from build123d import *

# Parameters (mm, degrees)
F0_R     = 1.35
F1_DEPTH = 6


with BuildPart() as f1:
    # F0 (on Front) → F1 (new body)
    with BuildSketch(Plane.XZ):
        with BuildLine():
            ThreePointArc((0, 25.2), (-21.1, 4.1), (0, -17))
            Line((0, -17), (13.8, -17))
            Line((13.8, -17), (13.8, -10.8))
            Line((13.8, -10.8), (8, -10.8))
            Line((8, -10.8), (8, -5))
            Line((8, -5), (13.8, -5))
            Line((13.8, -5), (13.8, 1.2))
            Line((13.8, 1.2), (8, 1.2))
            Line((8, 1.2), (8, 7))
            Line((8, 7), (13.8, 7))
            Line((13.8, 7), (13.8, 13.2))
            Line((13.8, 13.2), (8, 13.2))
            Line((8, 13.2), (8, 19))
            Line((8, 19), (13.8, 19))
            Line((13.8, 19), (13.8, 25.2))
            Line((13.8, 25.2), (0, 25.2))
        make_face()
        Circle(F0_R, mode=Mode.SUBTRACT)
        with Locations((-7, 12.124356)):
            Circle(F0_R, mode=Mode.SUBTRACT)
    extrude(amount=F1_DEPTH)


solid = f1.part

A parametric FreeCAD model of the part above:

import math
import FreeCAD as App
import Part
import Sketcher
from FreeCAD import Vector

doc = App.newDocument("Part")
body = doc.addObject("PartDesign::Body", "Body")

sketch1 = doc.addObject("Sketcher::SketchObject", "Sketch")
body.addObject(sketch1)
sketch1.AttachmentSupport = (doc.XZ_Plane, [""])
sketch1.MapMode = "FlatFace"
sketch1.addGeometry([
    Part.ArcOfCircle(Part.Circle(Vector(0, 4.1, 0), Vector(0, 0, 1), 21.1), math.radians(90), math.radians(270)),
    Part.LineSegment(Vector(0, -17, 0), Vector(13.8, -17, 0)),
    Part.LineSegment(Vector(13.8, -17, 0), Vector(13.8, -10.8, 0)),
    Part.LineSegment(Vector(13.8, -10.8, 0), Vector(8, -10.8, 0)),
    Part.LineSegment(Vector(8, -10.8, 0), Vector(8, -5, 0)),
    Part.LineSegment(Vector(8, -5, 0), Vector(13.8, -5, 0)),
    Part.LineSegment(Vector(13.8, -5, 0), Vector(13.8, 1.2, 0)),
    Part.LineSegment(Vector(13.8, 1.2, 0), Vector(8, 1.2, 0)),
    Part.LineSegment(Vector(8, 1.2, 0), Vector(8, 7, 0)),
    Part.LineSegment(Vector(8, 7, 0), Vector(13.8, 7, 0)),
    Part.LineSegment(Vector(13.8, 7, 0), Vector(13.8, 13.2, 0)),
    Part.LineSegment(Vector(13.8, 13.2, 0), Vector(8, 13.2, 0)),
    Part.LineSegment(Vector(8, 13.2, 0), Vector(8, 19, 0)),
    Part.LineSegment(Vector(8, 19, 0), Vector(13.8, 19, 0)),
    Part.LineSegment(Vector(13.8, 19, 0), Vector(13.8, 25.2, 0)),
    Part.LineSegment(Vector(13.8, 25.2, 0), Vector(0, 25.2, 0)),
    Part.Circle(Vector(0, 0, 0), Vector(0, 0, 1), 1.4),
    Part.Circle(Vector(-7, 12.1, 0), Vector(0, 0, 1), 1.4),
], False)
sketch1.addConstraint([
    Sketcher.Constraint("Tangent", 0, 2, 1, 1),
    Sketcher.Constraint("Coincident", 1, 2, 2, 1),
    Sketcher.Constraint("Coincident", 2, 2, 3, 1),
    Sketcher.Constraint("Coincident", 3, 2, 4, 1),
    Sketcher.Constraint("Coincident", 4, 2, 5, 1),
    Sketcher.Constraint("Coincident", 5, 2, 6, 1),
    Sketcher.Constraint("Coincident", 6, 2, 7, 1),
    Sketcher.Constraint("Coincident", 7, 2, 8, 1),
    Sketcher.Constraint("Coincident", 8, 2, 9, 1),
    Sketcher.Constraint("Coincident", 9, 2, 10, 1),
    Sketcher.Constraint("Coincident", 10, 2, 11, 1),
    Sketcher.Constraint("Coincident", 11, 2, 12, 1),
    Sketcher.Constraint("Coincident", 12, 2, 13, 1),
    Sketcher.Constraint("Coincident", 13, 2, 14, 1),
    Sketcher.Constraint("Coincident", 14, 2, 15, 1),
    Sketcher.Constraint("Tangent", 15, 2, 0, 1),
    Sketcher.Constraint("Horizontal", 1),
    Sketcher.Constraint("Vertical", 2),
    Sketcher.Constraint("Horizontal", 3),
    Sketcher.Constraint("Vertical", 4),
    Sketcher.Constraint("Horizontal", 5),
    Sketcher.Constraint("Vertical", 6),
    Sketcher.Constraint("Horizontal", 7),
    Sketcher.Constraint("Vertical", 8),
    Sketcher.Constraint("Horizontal", 9),
    Sketcher.Constraint("Vertical", 10),
    Sketcher.Constraint("Horizontal", 11),
    Sketcher.Constraint("Vertical", 12),
    Sketcher.Constraint("Horizontal", 13),
    Sketcher.Constraint("Vertical", 14),
    Sketcher.Constraint("Horizontal", 15),
    Sketcher.Constraint("Coincident", 16, 3, -1, 1),
    Sketcher.Constraint("Equal", 16, 17),
    Sketcher.Constraint("PointOnObject", 0, 3, -2),
    Sketcher.Constraint("Vertical", 2, 2, 5, 2),
    Sketcher.Constraint("Vertical", 4, 2, 7, 2),
    Sketcher.Constraint("Vertical", 6, 2, 9, 2),
    Sketcher.Constraint("Vertical", 8, 2, 11, 2),
    Sketcher.Constraint("Vertical", 10, 2, 13, 2),
    Sketcher.Constraint("Equal", 13, 4),
    Sketcher.Constraint("Equal", 2, 6),
    Sketcher.Constraint("Equal", 4, 8),
    Sketcher.Constraint("Equal", 6, 10),
    Sketcher.Constraint("Equal", 8, 12),
    Sketcher.Constraint("Equal", 10, 14),
    Sketcher.Constraint("Diameter", 16, 2.7),
    Sketcher.Constraint("Radius", 0, 21.1),
    Sketcher.Constraint("DistanceX", 1, 1, 1, 2, 13.8),
    Sketcher.Constraint("DistanceX", 3, 2, 3, 1, 5.8),
    Sketcher.Constraint("DistanceX", 17, 3, -1, 1, 7.0),
    Sketcher.Constraint("DistanceY", 0, 2, -1, 1, 17.0),
    Sketcher.Constraint("DistanceY", -1, 1, 17, 3, 12.124356),
])
pad1 = doc.addObject("PartDesign::Pad", "Pad")
body.addObject(pad1)
pad1.Profile = sketch1
pad1.Length = 6

doc.recompute()
